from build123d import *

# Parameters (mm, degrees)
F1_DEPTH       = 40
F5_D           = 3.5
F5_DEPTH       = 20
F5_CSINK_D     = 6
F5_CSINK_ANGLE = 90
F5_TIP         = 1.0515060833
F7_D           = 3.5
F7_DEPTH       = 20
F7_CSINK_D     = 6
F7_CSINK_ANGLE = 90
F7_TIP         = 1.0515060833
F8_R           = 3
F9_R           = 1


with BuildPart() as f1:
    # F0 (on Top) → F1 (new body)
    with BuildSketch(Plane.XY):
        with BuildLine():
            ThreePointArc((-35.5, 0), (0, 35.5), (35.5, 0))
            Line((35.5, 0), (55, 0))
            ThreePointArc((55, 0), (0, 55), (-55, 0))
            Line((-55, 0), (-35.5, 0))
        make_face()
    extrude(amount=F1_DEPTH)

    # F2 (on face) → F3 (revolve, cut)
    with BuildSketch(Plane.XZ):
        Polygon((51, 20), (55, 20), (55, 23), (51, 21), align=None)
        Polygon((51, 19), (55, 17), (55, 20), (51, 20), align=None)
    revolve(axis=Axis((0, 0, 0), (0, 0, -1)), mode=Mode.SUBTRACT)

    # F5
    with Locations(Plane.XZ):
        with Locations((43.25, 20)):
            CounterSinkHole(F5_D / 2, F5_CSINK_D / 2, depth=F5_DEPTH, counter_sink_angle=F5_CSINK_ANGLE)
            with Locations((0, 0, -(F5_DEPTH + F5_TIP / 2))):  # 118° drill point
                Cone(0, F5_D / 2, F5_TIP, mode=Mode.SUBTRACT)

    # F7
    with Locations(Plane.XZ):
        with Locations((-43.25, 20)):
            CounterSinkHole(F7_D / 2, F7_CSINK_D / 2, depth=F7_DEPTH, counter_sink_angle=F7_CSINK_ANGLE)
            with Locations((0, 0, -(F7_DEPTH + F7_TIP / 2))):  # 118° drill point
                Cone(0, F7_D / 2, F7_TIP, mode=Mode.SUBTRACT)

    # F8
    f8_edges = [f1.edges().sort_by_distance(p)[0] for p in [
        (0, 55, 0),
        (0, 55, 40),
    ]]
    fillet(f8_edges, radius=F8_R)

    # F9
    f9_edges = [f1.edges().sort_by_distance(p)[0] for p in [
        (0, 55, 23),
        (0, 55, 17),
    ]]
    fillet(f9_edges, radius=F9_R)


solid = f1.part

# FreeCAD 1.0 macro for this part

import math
import FreeCAD as App
import Part
import Sketcher
Q = App.Units.Quantity


def edges_at(feature, points):
    """Names of the edges that pass closest to the given points."""
    edges = feature.Shape.Edges
    near = lambda p: min(range(len(edges)), key=lambda i: edges[i].distToShape(Part.Vertex(*p))[0])
    return sorted({f"Edge{near(p) + 1}" for p in points})


def add_polygon(sketch, points):
    """Adds a closed chain of lines whose ends are joined by coincident constraints."""
    first, n = sketch.GeometryCount, len(points)
    for a, b in zip(points, points[1:] + points[:1]):
        sketch.addGeometry(Part.LineSegment(App.Vector(*a, 0), App.Vector(*b, 0)), False)
    for i in range(n):
        sketch.addConstraint(Sketcher.Constraint("Coincident", first + i, 2, first + (i + 1) % n, 1))

doc = App.newDocument("Part")
body = doc.addObject("PartDesign::Body", "Body")

# Sketch on XY plane
sketch1 = doc.addObject("Sketcher::SketchObject", "Sketch")
body.addObject(sketch1)
sketch1.AttachmentSupport = (doc.XY_Plane, [""])
sketch1.MapMode = "FlatFace"
sketch1.addGeometry([
    Part.ArcOfCircle(Part.Circle(App.Vector(0, 0, 0), App.Vector(0, 0, 1), 36), math.radians(0), math.radians(180)),
    Part.LineSegment(App.Vector(36, 0, 0), App.Vector(55, 0, 0)),
    Part.ArcOfCircle(Part.Circle(App.Vector(0, 0, 0), App.Vector(0, 0, 1), 55), math.radians(0), math.radians(180)),
    Part.LineSegment(App.Vector(-55, 0, 0), App.Vector(-36, 0, 0)),
], False)
sketch1.addConstraint([
    Sketcher.Constraint("Coincident", 0, 1, 1, 1),
    Sketcher.Constraint("Coincident", 1, 2, 2, 1),
    Sketcher.Constraint("Coincident", 2, 2, 3, 1),
    Sketcher.Constraint("Coincident", 3, 2, 0, 2),
    Sketcher.Constraint("Horizontal", 1),
    Sketcher.Constraint("Horizontal", 3),
    Sketcher.Constraint("Coincident", 0, 3, -1, 1),
    Sketcher.Constraint("Coincident", 2, 3, -1, 1),
    Sketcher.Constraint("PointOnObject", 0, 1, -1),
    Sketcher.Constraint("PointOnObject", 2, 2, -1),
    Sketcher.Constraint("Radius", 2, Q("55 mm")),
    Sketcher.Constraint("Radius", 0, Q("35.5 mm")),
])
pad1 = doc.addObject("PartDesign::Pad", "Pad")
body.addObject(pad1)
pad1.Profile = sketch1
pad1.Length = 40

# Sketch on XZ plane
sketch2 = doc.addObject("Sketcher::SketchObject", "Sketch001")
body.addObject(sketch2)
sketch2.AttachmentSupport = (doc.XZ_Plane, [""])
sketch2.MapMode = "FlatFace"
add_polygon(sketch2, [(55, 23), (51, 21), (51, 19), (55, 17)])  # lines 0-3
sketch2.addConstraint([
    Sketcher.Constraint("Vertical", 1),
    Sketcher.Constraint("Vertical", 3),
    Sketcher.Constraint("Equal", 0, 2),
    Sketcher.Constraint("DistanceY", 1, 2, 1, 1, Q("2 mm")),
    Sketcher.Constraint("DistanceY", 3, 1, 3, 2, Q("6 mm")),
    Sketcher.Constraint("DistanceX", -1, 1, 0, 2, Q("51 mm")),
    Sketcher.Constraint("DistanceY", -1, 1, 0, 2, Q("21 mm")),
    Sketcher.Constraint("DistanceX", -1, 1, 2, 2, Q("55 mm")),
])
groove = doc.addObject("PartDesign::Groove", "Groove")
body.addObject(groove)
groove.Profile = sketch2
groove.ReferenceAxis = (sketch2, ["V_Axis"])
groove.Angle = 360

# Sketch on XZ plane
sketch3 = doc.addObject("Sketcher::SketchObject", "Sketch002")
body.addObject(sketch3)
sketch3.AttachmentSupport = (doc.XZ_Plane, [""])
sketch3.MapMode = "FlatFace"
sketch3.addGeometry(Part.Circle(App.Vector(43.2, 20, 0), App.Vector(0, 0, 1), 1.8), False)
sketch3.addConstraint([
    Sketcher.Constraint("Diameter", 0, Q("3.5 mm")),
    Sketcher.Constraint("DistanceY", -1, 1, 0, 3, Q("20 mm")),
    Sketcher.Constraint("DistanceX", -1, 1, 0, 3, Q("43.25 mm")),
])
doc.recompute()
hole = doc.addObject("PartDesign::Hole", "Hole")
body.addObject(hole)
hole.Profile = sketch3
hole.ThreadType = "None"
hole.Diameter = 3.5
hole.DepthType = "Dimension"
hole.Depth = 20
hole.DrillPoint = "Angled"
hole.DrillPointAngle = 118
hole.HoleCutType = "Countersink"
hole.HoleCutDiameter = 6
hole.HoleCutCountersinkAngle = 90

# Sketch on XZ plane
sketch4 = doc.addObject("Sketcher::SketchObject", "Sketch003")
body.addObject(sketch4)
sketch4.AttachmentSupport = (doc.XZ_Plane, [""])
sketch4.MapMode = "FlatFace"
sketch4.addGeometry(Part.Circle(App.Vector(-43.2, 20, 0), App.Vector(0, 0, 1), 1.8), False)
sketch4.addConstraint([
    Sketcher.Constraint("Diameter", 0, Q("3.5 mm")),
    Sketcher.Constraint("DistanceY", -1, 1, 0, 3, Q("20 mm")),
    Sketcher.Constraint("DistanceX", 0, 3, -1, 1, Q("43.25 mm")),
])
doc.recompute()
hole2 = doc.addObject("PartDesign::Hole", "Hole001")
body.addObject(hole2)
hole2.Profile = sketch4
hole2.ThreadType = "None"
hole2.Diameter = 3.5
hole2.DepthType = "Dimension"
hole2.Depth = 20
hole2.DrillPoint = "Angled"
hole2.DrillPointAngle = 118
hole2.HoleCutType = "Countersink"
hole2.HoleCutDiameter = 6
hole2.HoleCutCountersinkAngle = 90
doc.recompute()

fillet = doc.addObject("PartDesign::Fillet", "Fillet")
body.addObject(fillet)
fillet.Base = (hole2, edges_at(hole2, [(0, 55, 0), (0, 55, 40)]))
fillet.Radius = 3
doc.recompute()

fillet2 = doc.addObject("PartDesign::Fillet", "Fillet001")
body.addObject(fillet2)
fillet2.Base = (fillet, edges_at(fillet, [(0, 55, 23), (0, 55, 17)]))
fillet2.Radius = 1

doc.recompute()
